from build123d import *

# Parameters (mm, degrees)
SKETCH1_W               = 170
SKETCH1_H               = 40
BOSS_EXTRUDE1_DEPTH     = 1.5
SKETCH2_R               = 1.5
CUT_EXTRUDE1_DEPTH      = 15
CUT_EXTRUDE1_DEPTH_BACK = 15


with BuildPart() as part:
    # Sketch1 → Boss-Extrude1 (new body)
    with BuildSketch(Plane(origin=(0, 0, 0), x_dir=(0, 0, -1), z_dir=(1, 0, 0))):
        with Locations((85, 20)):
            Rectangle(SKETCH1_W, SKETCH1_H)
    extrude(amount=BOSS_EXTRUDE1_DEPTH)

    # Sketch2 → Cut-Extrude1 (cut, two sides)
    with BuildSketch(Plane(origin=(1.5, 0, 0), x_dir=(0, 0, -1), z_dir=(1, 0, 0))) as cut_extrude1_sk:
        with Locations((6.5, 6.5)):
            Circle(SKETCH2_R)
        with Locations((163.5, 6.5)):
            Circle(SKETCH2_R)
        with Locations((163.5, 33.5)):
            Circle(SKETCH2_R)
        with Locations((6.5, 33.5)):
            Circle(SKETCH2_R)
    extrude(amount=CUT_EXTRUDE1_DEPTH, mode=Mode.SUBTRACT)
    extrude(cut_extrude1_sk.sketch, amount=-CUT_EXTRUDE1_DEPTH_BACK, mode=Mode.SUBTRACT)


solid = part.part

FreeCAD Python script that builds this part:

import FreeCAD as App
import Part
import Sketcher
from FreeCAD import Vector


def add_polygon(sketch, points):
    """Adds a closed chain of lines whose ends are joined by coincident constraints."""
    first, n = sketch.GeometryCount, len(points)
    for a, b in zip(points, points[1:] + points[:1]):
        sketch.addGeometry(Part.LineSegment(App.Vector(*a, 0), App.Vector(*b, 0)), False)
    for i in range(n):
        sketch.addConstraint(Sketcher.Constraint("Coincident", first + i, 2, first + (i + 1) % n, 1))

doc = App.newDocument("Part")
body = doc.addObject("PartDesign::Body", "Body")

sketch1 = doc.addObject("Sketcher::SketchObject", "Sketch")
body.addObject(sketch1)
sketch1.AttachmentSupport = (doc.YZ_Plane, [""])
sketch1.MapMode = "FlatFace"
add_polygon(sketch1, [(40, 0), (0, 0), (0, -170), (40, -170)])
sketch1.addConstraint(Sketcher.Constraint("Horizontal", 0))
sketch1.addConstraint(Sketcher.Constraint("Vertical", 1))
sketch1.addConstraint(Sketcher.Constraint("Horizontal", 2))
sketch1.addConstraint(Sketcher.Constraint("Vertical", 3))
sketch1.addConstraint(Sketcher.Constraint("Coincident", 0, 2, -1, 1))
sketch1.addConstraint(Sketcher.Constraint("DistanceX", 0, 2, 0, 1, 40.0))
sketch1.addConstraint(Sketcher.Constraint("DistanceY", 1, 2, 1, 1, 170.0))
pad1 = doc.addObject("PartDesign::Pad", "Pad")
body.addObject(pad1)
pad1.Profile = sketch1
pad1.Length = 1.5

sketch2 = doc.addObject("Sketcher::SketchObject", "Sketch001")
body.addObject(sketch2)
sketch2.AttachmentSupport = (doc.YZ_Plane, [""])
sketch2.MapMode = "FlatFace"
sketch2.AttachmentOffset = App.Placement(Vector(0, 0, 1.5), App.Rotation())
sketch2.addGeometry(Part.Circle(Vector(6.5, -6.5, 0), Vector(0, 0, 1), 1.5), False)
sketch2.addGeometry(Part.Circle(Vector(6.5, -163.5, 0), Vector(0, 0, 1), 1.5), False)
sketch2.addGeometry(Part.Circle(Vector(33.5, -163.5, 0), Vector(0, 0, 1), 1.5), False)
sketch2.addGeometry(Part.Circle(Vector(33.5, -6.5, 0), Vector(0, 0, 1), 1.5), False)
sketch2.addConstraint(Sketcher.Constraint("Equal", 0, 1))
sketch2.addConstraint(Sketcher.Constraint("Equal", 1, 2))
sketch2.addConstraint(Sketcher.Constraint("Equal", 2, 3))
sketch2.addConstraint(Sketcher.Constraint("Horizontal", 1, 3, 2, 3))
sketch2.addConstraint(Sketcher.Constraint("Horizontal", 0, 3, 3, 3))
sketch2.addConstraint(Sketcher.Constraint("Vertical", 0, 3, 1, 3))
sketch2.addConstraint(Sketcher.Constraint("Vertical", 2, 3, 3, 3))
sketch2.addConstraint(Sketcher.Constraint("Diameter", 0, 3.0))
sketch2.addConstraint(Sketcher.Constraint("DistanceY", 1, 3, 0, 3, 157.0))
sketch2.addConstraint(Sketcher.Constraint("DistanceX", 1, 3, 2, 3, 27.0))
sketch2.addConstraint(Sketcher.Constraint("DistanceX", -1, 1, 0, 3, 6.5))
sketch2.addConstraint(Sketcher.Constraint("DistanceY", 0, 3, -1, 1, 6.5))
pocket1 = doc.addObject("PartDesign::Pocket", "Pocket")
body.addObject(pocket1)
pocket1.Profile = sketch2
pocket1.Type = "ThroughAll"
pocket1.Midplane = True

doc.recompute()
